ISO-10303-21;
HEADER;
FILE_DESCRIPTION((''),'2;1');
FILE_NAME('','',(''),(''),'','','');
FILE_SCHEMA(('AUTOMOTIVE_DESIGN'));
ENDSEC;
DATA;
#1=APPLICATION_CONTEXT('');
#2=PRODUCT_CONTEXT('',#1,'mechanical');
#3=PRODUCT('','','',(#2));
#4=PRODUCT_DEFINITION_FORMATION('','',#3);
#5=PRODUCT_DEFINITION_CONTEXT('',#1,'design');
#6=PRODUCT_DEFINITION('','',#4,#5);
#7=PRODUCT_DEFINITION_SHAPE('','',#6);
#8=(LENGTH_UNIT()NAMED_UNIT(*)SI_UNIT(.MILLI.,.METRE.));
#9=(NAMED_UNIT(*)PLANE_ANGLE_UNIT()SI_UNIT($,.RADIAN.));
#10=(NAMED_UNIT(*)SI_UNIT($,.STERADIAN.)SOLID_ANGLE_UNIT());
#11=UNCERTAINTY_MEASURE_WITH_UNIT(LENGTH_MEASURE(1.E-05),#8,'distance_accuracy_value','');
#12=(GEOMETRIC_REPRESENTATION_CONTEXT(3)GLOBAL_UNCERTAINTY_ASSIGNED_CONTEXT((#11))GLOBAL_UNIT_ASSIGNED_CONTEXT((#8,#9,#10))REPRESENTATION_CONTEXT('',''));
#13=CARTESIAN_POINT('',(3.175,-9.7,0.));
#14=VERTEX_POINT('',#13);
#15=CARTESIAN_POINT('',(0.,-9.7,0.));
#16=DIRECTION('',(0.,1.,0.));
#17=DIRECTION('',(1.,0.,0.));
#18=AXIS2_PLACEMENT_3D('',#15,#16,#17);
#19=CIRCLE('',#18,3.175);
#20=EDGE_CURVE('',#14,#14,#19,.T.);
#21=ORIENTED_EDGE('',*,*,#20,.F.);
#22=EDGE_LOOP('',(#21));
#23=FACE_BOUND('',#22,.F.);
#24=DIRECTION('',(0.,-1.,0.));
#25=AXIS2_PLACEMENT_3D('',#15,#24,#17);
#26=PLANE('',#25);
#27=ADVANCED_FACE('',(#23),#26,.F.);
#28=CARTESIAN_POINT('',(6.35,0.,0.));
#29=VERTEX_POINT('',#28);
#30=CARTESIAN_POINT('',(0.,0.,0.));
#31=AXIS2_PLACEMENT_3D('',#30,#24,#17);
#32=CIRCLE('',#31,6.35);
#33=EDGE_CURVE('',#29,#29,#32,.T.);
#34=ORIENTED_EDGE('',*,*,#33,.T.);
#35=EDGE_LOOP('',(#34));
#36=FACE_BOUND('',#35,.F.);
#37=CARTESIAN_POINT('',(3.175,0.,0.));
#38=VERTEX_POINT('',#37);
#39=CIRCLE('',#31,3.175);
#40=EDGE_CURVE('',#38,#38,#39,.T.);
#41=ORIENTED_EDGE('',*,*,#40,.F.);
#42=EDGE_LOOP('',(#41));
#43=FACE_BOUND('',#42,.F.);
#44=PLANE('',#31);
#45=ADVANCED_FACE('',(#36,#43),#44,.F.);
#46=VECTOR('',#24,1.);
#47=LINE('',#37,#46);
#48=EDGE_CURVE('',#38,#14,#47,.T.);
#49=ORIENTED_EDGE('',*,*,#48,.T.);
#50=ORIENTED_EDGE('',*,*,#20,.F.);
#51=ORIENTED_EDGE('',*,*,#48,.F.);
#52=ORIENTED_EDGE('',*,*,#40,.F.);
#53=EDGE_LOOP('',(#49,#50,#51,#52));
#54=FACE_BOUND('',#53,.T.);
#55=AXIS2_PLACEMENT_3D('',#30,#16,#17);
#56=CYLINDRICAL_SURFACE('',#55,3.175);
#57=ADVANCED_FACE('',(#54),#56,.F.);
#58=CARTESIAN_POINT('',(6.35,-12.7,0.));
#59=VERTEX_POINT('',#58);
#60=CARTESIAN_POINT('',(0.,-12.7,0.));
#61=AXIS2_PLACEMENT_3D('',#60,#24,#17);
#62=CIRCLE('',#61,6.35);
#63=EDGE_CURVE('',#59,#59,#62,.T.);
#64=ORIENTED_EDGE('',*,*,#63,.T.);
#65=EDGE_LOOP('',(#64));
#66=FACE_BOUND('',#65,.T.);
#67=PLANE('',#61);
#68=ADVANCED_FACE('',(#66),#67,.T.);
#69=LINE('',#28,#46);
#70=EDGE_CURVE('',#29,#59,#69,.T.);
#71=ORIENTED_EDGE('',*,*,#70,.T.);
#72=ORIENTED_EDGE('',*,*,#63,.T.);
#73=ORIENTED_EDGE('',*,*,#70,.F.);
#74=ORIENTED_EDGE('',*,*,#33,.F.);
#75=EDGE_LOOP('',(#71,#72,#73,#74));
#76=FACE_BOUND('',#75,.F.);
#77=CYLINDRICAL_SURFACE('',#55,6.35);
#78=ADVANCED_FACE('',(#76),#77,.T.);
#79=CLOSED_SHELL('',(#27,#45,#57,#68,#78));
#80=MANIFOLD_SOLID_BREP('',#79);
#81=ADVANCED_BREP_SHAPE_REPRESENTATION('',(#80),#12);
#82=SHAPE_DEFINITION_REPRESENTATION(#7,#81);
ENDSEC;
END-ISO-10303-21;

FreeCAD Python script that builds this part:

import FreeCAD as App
import Part
import Sketcher

V = App.Vector
Q = App.Units.Quantity

doc = App.newDocument("Part")
body = doc.addObject("PartDesign::Body", "Body")

sketch1 = doc.addObject("Sketcher::SketchObject", "Sketch")
body.addObject(sketch1)
sketch1.AttachmentSupport = (doc.XZ_Plane, [""])
sketch1.MapMode = "FlatFace"
sketch1.addGeometry([
    Part.Circle(V(0, 0, 0), V(0, 0, 1), 6.3),
    Part.Circle(V(0, 0, 0), V(0, 0, 1), 3.2),
], False)
sketch1.addConstraint([
    Sketcher.Constraint("Coincident", 0, 3, -1, 1),
    Sketcher.Constraint("Coincident", 1, 3, -1, 1),
    Sketcher.Constraint("Diameter", 0, Q("0.5 in")),
    Sketcher.Constraint("Diameter", 1, Q("0.25 in")),
])
pad1 = doc.addObject("PartDesign::Pad", "Pad")
body.addObject(pad1)
pad1.Profile = sketch1
pad1.Length = Q("0.5 in")

sketch2 = doc.addObject("Sketcher::SketchObject", "Sketch001")
body.addObject(sketch2)
sketch2.AttachmentSupport = (doc.XZ_Plane, [""])
sketch2.MapMode = "FlatFace"
sketch2.AttachmentOffset = App.Placement(V(0, 0, 0.5 * 25.4), App.Rotation())
sketch2.addGeometry(Part.Circle(V(0, 0, 0), V(0, 0, 1), 6), False)
sketch2.addConstraint([
    Sketcher.Constraint("Coincident", 0, 3, -1, 1),
    Sketcher.Constraint("Diameter", 0, Q("0.5 in")),
])
pad2 = doc.addObject("PartDesign::Pad", "Pad001")
body.addObject(pad2)
pad2.Profile = sketch2
pad2.Length = 3
pad2.Reversed = True

doc.recompute()
